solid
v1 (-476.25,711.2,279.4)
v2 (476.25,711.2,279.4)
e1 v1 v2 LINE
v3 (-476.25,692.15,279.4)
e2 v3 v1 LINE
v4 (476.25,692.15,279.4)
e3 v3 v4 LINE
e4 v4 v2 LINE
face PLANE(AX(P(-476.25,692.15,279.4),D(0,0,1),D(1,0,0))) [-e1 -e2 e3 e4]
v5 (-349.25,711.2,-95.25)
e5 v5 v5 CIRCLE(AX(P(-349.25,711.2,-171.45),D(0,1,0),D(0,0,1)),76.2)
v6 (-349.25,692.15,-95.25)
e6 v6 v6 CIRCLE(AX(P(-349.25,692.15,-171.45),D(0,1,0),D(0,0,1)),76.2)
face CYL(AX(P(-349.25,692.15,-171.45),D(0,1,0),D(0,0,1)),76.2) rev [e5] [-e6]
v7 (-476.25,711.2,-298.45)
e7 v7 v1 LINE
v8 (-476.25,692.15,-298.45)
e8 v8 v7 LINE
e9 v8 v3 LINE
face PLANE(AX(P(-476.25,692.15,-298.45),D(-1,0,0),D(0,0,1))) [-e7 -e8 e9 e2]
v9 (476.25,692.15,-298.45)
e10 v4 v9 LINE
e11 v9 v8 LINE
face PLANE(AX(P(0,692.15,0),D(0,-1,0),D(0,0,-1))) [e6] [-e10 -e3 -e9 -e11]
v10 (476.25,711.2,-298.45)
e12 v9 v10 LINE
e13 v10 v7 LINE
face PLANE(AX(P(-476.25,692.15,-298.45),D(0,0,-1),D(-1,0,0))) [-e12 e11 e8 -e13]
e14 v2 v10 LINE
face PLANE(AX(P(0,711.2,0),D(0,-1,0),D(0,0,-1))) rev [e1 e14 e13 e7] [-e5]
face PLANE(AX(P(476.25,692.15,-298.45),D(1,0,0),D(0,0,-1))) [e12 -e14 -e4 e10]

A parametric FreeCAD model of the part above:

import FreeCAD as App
import Part
import Sketcher
from FreeCAD import Vector
Q = App.Units.Quantity

doc = App.newDocument("Part")
body = doc.addObject("PartDesign::Body", "Body")

sketch1 = body.newObject("Sketcher::SketchObject", "Sketch")
sketch1.AttachmentSupport = (doc.getObject("XZ_Plane"), [""])
sketch1.MapMode = "FlatFace"
sketch1.AttachmentOffset = App.Placement(Vector(0, 0, -28 * 25.4), App.Rotation())
sketch1.addGeometry([
    Part.LineSegment(Vector(-476, -298, 0), Vector(-476, 279, 0)),
    Part.LineSegment(Vector(-476, 279, 0), Vector(476, 279, 0)),
    Part.LineSegment(Vector(476, 279, 0), Vector(476, -298, 0)),
    Part.LineSegment(Vector(476, -298, 0), Vector(-476, -298, 0)),
], False)
sketch1.addConstraint([
    Sketcher.Constraint("Coincident", 0, 2, 1, 1),
    Sketcher.Constraint("Coincident", 1, 2, 2, 1),
    Sketcher.Constraint("Coincident", 2, 2, 3, 1),
    Sketcher.Constraint("Coincident", 3, 2, 0, 1),
    Sketcher.Constraint("Vertical", 0),
    Sketcher.Constraint("Horizontal", 1),
    Sketcher.Constraint("Vertical", 2),
    Sketcher.Constraint("Horizontal", 3),
    Sketcher.Constraint("DistanceX", 1, 1, 1, 2, Q("37.5 in")),
    Sketcher.Constraint("DistanceY", -1, 1, 0, 2, Q("11 in")),
    Sketcher.Constraint("DistanceY", 0, 1, 0, 2, Q("22.75 in")),
    Sketcher.Constraint("DistanceX", 0, 2, -1, 1, Q("18.75 in")),
])
pad1 = body.newObject("PartDesign::Pad", "Pad")
pad1.Profile = sketch1
pad1.Length = Q("0.75 in")

sketch2 = body.newObject("Sketcher::SketchObject", "Sketch001")
sketch2.AttachmentSupport = (doc.getObject("XZ_Plane"), [""])
sketch2.MapMode = "FlatFace"
sketch2.AttachmentOffset = App.Placement(Vector(0, 0, -28 * 25.4), App.Rotation())
sketch2.addGeometry(Part.Circle(Vector(-349, -171, 0), Vector(0, 0, 1), 76), False)
sketch2.addConstraint([
    Sketcher.Constraint("Diameter", 0, Q("6 in")),
    Sketcher.Constraint("DistanceX", 0, 3, -1, 1, Q("13.75 in")),
    Sketcher.Constraint("DistanceY", 0, 3, -1, 1, Q("6.75 in")),
])
pocket1 = body.newObject("PartDesign::Pocket", "Pocket")
pocket1.Profile = sketch2
pocket1.Type = "ThroughAll"
pocket1.Reversed = True

doc.recompute()
